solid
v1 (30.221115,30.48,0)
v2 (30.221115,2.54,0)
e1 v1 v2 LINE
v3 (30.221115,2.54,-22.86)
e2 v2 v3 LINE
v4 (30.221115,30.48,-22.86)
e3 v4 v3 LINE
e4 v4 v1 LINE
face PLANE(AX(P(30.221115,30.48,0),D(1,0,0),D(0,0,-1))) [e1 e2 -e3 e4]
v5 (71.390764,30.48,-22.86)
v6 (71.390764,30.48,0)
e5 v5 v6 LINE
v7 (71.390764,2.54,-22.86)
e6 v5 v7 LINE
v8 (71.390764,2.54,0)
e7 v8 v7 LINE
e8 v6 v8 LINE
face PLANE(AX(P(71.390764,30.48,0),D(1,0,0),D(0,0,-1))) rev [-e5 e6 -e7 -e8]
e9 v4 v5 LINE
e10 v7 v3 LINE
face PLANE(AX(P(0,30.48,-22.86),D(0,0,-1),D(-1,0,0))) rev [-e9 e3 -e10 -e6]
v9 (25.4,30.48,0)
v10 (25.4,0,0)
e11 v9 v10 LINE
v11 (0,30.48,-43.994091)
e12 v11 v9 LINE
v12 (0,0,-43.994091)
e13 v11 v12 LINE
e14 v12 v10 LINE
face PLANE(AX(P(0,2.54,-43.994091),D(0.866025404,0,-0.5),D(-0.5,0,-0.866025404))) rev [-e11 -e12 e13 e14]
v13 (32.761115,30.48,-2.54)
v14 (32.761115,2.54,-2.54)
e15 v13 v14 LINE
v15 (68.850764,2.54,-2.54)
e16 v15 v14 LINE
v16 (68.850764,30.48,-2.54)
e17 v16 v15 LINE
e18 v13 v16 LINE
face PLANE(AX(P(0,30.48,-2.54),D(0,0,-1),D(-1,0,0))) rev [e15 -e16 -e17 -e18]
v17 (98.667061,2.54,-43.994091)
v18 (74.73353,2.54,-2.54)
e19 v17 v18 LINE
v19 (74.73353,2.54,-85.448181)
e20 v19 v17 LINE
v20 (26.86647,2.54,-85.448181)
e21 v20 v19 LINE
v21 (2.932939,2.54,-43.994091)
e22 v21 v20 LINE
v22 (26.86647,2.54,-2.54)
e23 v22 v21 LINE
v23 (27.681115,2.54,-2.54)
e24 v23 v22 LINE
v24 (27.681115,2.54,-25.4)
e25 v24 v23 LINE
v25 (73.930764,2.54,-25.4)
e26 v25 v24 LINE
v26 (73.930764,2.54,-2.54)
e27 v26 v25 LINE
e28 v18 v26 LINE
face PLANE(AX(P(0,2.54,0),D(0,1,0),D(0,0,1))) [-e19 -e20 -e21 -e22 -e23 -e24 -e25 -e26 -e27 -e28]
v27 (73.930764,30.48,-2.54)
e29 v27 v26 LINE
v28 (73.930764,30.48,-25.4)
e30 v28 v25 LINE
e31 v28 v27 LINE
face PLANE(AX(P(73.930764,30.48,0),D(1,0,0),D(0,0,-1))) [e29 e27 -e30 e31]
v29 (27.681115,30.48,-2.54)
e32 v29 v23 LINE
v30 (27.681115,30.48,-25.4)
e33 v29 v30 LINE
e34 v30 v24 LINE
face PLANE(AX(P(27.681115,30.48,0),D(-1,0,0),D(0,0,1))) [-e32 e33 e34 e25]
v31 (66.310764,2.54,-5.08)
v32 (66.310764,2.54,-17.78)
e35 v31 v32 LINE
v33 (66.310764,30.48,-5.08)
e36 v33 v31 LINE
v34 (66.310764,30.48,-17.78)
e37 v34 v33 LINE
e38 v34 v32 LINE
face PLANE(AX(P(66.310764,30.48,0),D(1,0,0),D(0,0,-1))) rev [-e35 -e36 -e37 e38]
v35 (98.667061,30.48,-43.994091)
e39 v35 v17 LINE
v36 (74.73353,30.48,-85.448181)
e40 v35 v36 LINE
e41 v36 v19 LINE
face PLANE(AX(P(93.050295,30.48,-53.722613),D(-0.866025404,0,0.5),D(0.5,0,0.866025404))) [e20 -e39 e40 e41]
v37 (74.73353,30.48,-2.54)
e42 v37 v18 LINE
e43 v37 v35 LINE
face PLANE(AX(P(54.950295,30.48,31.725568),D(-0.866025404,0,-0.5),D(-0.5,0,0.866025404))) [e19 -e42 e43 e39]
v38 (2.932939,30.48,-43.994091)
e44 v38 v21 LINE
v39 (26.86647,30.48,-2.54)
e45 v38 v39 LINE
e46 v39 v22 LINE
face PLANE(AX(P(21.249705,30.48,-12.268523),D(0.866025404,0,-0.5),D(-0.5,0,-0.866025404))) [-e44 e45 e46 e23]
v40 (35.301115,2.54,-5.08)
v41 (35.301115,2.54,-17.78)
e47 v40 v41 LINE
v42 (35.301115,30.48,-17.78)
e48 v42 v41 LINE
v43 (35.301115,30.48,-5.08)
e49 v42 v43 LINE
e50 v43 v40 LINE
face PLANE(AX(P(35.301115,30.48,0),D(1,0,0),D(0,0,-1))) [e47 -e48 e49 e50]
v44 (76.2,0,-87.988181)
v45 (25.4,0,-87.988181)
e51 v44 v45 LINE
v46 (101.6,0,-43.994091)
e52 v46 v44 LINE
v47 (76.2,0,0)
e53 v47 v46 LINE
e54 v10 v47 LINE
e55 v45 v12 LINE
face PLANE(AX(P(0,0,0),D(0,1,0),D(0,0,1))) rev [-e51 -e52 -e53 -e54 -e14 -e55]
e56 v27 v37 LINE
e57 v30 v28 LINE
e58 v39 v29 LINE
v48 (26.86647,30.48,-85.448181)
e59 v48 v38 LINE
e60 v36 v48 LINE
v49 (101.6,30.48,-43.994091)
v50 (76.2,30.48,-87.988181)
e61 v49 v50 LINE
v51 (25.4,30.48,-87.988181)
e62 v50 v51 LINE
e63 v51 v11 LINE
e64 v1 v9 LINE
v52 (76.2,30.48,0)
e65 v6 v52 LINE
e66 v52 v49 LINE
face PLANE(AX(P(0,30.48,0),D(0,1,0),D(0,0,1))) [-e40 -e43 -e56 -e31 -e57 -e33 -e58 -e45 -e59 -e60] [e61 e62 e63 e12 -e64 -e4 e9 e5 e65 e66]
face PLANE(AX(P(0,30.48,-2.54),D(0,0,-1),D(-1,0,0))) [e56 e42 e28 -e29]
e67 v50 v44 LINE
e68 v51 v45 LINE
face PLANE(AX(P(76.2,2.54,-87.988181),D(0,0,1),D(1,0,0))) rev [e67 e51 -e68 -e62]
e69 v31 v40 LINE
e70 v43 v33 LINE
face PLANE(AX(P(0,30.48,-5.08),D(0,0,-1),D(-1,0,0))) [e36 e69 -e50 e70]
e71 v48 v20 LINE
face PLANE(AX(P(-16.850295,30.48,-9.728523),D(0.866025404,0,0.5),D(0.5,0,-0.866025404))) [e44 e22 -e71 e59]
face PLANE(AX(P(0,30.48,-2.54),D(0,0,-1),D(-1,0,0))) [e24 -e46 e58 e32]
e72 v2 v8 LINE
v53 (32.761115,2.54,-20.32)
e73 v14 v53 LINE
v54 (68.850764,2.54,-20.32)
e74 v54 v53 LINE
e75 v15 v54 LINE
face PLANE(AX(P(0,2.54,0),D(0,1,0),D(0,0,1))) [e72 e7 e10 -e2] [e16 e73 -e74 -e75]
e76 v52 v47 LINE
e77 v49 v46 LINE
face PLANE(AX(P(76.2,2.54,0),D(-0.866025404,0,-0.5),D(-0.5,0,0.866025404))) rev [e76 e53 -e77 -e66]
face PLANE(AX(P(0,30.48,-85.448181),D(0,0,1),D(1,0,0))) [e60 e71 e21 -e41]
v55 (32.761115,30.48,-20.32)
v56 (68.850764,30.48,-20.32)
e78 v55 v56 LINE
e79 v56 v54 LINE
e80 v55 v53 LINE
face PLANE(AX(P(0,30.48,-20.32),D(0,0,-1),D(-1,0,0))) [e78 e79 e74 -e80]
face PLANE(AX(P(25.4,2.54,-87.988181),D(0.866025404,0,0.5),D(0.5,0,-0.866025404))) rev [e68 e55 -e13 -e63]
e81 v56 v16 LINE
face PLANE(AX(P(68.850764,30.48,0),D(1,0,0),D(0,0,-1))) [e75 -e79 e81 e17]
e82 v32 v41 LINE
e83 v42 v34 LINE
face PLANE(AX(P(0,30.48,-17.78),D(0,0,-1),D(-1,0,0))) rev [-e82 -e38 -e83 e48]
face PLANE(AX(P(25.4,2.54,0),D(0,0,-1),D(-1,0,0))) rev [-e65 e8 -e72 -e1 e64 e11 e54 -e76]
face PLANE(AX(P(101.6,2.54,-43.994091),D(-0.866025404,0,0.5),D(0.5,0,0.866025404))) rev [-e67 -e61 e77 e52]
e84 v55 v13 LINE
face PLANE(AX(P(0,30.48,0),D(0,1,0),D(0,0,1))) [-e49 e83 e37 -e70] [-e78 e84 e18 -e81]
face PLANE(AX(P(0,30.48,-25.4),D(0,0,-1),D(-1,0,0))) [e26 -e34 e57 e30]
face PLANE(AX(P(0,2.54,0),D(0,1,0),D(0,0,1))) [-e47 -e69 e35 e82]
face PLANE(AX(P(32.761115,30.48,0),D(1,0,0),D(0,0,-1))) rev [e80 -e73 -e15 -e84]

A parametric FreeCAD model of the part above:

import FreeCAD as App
import Part
import Sketcher
Q = App.Units.Quantity

doc = App.newDocument("Part")
body = doc.addObject("PartDesign::Body", "Body")

# Sketch on XZ plane
sketch1 = doc.addObject("Sketcher::SketchObject", "Sketch")
body.addObject(sketch1)
sketch1.AttachmentSupport = (doc.XZ_Plane, [""])
sketch1.MapMode = "FlatFace"
sketch1.addGeometry([
    Part.LineSegment(App.Vector(76.2, 0, 0), App.Vector(101.6, -43.994091, 0)),  # 0
    Part.LineSegment(App.Vector(101.6, -43.994091, 0), App.Vector(76.2, -87.988181, 0)),  # 1
    Part.LineSegment(App.Vector(76.2, -87.988181, 0), App.Vector(25.4, -87.988181, 0)),  # 2
    Part.LineSegment(App.Vector(25.4, -87.988181, 0), App.Vector(0, -43.994091, 0)),  # 3
    Part.LineSegment(App.Vector(0, -43.994091, 0), App.Vector(25.4, 0, 0)),  # 4
    Part.LineSegment(App.Vector(25.4, 0, 0), App.Vector(76.2, 0, 0)),  # 5
], False)
sketch1.addConstraint([
    Sketcher.Constraint("Coincident", 0, 2, 1, 1),
    Sketcher.Constraint("Coincident", 1, 2, 2, 1),
    Sketcher.Constraint("Coincident", 2, 2, 3, 1),
    Sketcher.Constraint("Coincident", 3, 2, 4, 1),
    Sketcher.Constraint("Coincident", 4, 2, 5, 1),
    Sketcher.Constraint("Coincident", 5, 2, 0, 1),
    Sketcher.Constraint("Horizontal", 2),
    Sketcher.Constraint("Horizontal", 5),
    Sketcher.Constraint("PointOnObject", 3, 2, -2),
    Sketcher.Constraint("PointOnObject", 4, 2, -1),
    Sketcher.Constraint("Parallel", 0, 3),
    Sketcher.Constraint("Parallel", 1, 4),
    Sketcher.Constraint("Horizontal", 0, 2, 3, 2),
    Sketcher.Constraint("Vertical", 2, 2, 4, 2),
    Sketcher.Constraint("Vertical", 1, 2, 5, 2),
    Sketcher.Constraint("DistanceX", 2, 2, 2, 1, Q("2 in")),
    Sketcher.Constraint("Distance", 0, Q("2 in")),
    Sketcher.Constraint("DistanceX", -1, 1, 0, 2, Q("4 in")),
])
pad1 = doc.addObject("PartDesign::Pad", "Pad")
body.addObject(pad1)
pad1.Profile = sketch1
pad1.Length = Q("0.1 in")
pad1.Reversed = True

# Sketch on XZ plane
sketch2 = doc.addObject("Sketcher::SketchObject", "Sketch001")
body.addObject(sketch2)
sketch2.AttachmentSupport = (doc.XZ_Plane, [""])
sketch2.MapMode = "FlatFace"
sketch2.addGeometry([
    Part.LineSegment(App.Vector(32.761115, -20.32, 0), App.Vector(32.761115, -2.54, 0)),  # 0
    Part.LineSegment(App.Vector(32.761115, -2.54, 0), App.Vector(68.850764, -2.54, 0)),  # 1
    Part.LineSegment(App.Vector(68.850764, -2.54, 0), App.Vector(68.850764, -20.32, 0)),  # 2
    Part.LineSegment(App.Vector(68.850764, -20.32, 0), App.Vector(32.761115, -20.32, 0)),  # 3
    Part.LineSegment(App.Vector(66.310764, -5.08, 0), App.Vector(35.301115, -5.08, 0)),  # 4
    Part.LineSegment(App.Vector(35.301115, -5.08, 0), App.Vector(35.301115, -17.78, 0)),  # 5
    Part.LineSegment(App.Vector(35.301115, -17.78, 0), App.Vector(66.310764, -17.78, 0)),  # 6
    Part.LineSegment(App.Vector(66.310764, -17.78, 0), App.Vector(66.310764, -5.08, 0)),  # 7
    Part.LineSegment(App.Vector(30.221115, 0, 0), App.Vector(30.221115, -22.86, 0)),  # 8
    Part.LineSegment(App.Vector(30.221115, -22.86, 0), App.Vector(71.390764, -22.86, 0)),  # 9
    Part.LineSegment(App.Vector(71.390764, -22.86, 0), App.Vector(71.390764, 0, 0)),  # 10
    Part.LineSegment(App.Vector(71.390764, 0, 0), App.Vector(76.2, 0, 0)),  # 11
    Part.LineSegment(App.Vector(76.2, 0, 0), App.Vector(101.6, -43.994091, 0)),  # 12
    Part.LineSegment(App.Vector(101.6, -43.994091, 0), App.Vector(76.2, -87.988181, 0)),  # 13
    Part.LineSegment(App.Vector(76.2, -87.988181, 0), App.Vector(25.4, -87.988181, 0)),  # 14
    Part.LineSegment(App.Vector(25.4, -87.988181, 0), App.Vector(0, -43.994091, 0)),  # 15
    Part.LineSegment(App.Vector(0, -43.994091, 0), App.Vector(25.4, 0, 0)),  # 16
    Part.LineSegment(App.Vector(25.4, 0, 0), App.Vector(30.221115, 0, 0)),  # 17
    Part.LineSegment(App.Vector(73.930764, -2.54, 0), App.Vector(73.930764, -25.4, 0)),  # 18
    Part.LineSegment(App.Vector(73.930764, -25.4, 0), App.Vector(27.681115, -25.4, 0)),  # 19
    Part.LineSegment(App.Vector(27.681115, -25.4, 0), App.Vector(27.681115, -2.54, 0)),  # 20
    Part.LineSegment(App.Vector(27.681115, -2.54, 0), App.Vector(26.86647, -2.54, 0)),  # 21
    Part.LineSegment(App.Vector(26.86647, -2.54, 0), App.Vector(2.932939, -43.994091, 0)),  # 22
    Part.LineSegment(App.Vector(2.932939, -43.994091, 0), App.Vector(26.86647, -85.448181, 0)),  # 23
    Part.LineSegment(App.Vector(26.86647, -85.448181, 0), App.Vector(74.73353, -85.448181, 0)),  # 24
    Part.LineSegment(App.Vector(74.73353, -85.448181, 0), App.Vector(98.667061, -43.994091, 0)),  # 25
    Part.LineSegment(App.Vector(98.667061, -43.994091, 0), App.Vector(74.73353, -2.54, 0)),  # 26
    Part.LineSegment(App.Vector(74.73353, -2.54, 0), App.Vector(73.930764, -2.54, 0)),  # 27
], False)
sketch2.addConstraint([
    Sketcher.Constraint("Coincident", 0, 2, 1, 1),
    Sketcher.Constraint("Coincident", 1, 2, 2, 1),
    Sketcher.Constraint("Coincident", 2, 2, 3, 1),
    Sketcher.Constraint("Coincident", 3, 2, 0, 1),
    Sketcher.Constraint("Coincident", 4, 2, 5, 1),
    Sketcher.Constraint("Coincident", 5, 2, 6, 1),
    Sketcher.Constraint("Coincident", 6, 2, 7, 1),
    Sketcher.Constraint("Coincident", 7, 2, 4, 1),
    Sketcher.Constraint("Coincident", 8, 2, 9, 1),
    Sketcher.Constraint("Coincident", 9, 2, 10, 1),
    Sketcher.Constraint("Coincident", 10, 2, 11, 1),
    Sketcher.Constraint("Coincident", 11, 2, 12, 1),
    Sketcher.Constraint("Coincident", 12, 2, 13, 1),
    Sketcher.Constraint("Coincident", 13, 2, 14, 1),
    Sketcher.Constraint("Coincident", 14, 2, 15, 1),
    Sketcher.Constraint("Coincident", 15, 2, 16, 1),
    Sketcher.Constraint("Coincident", 16, 2, 17, 1),
    Sketcher.Constraint("Coincident", 17, 2, 8, 1),
    Sketcher.Constraint("Coincident", 18, 2, 19, 1),
    Sketcher.Constraint("Coincident", 19, 2, 20, 1),
    Sketcher.Constraint("Coincident", 20, 2, 21, 1),
    Sketcher.Constraint("Coincident", 21, 2, 22, 1),
    Sketcher.Constraint("Coincident", 22, 2, 23, 1),
    Sketcher.Constraint("Coincident", 23, 2, 24, 1),
    Sketcher.Constraint("Coincident", 24, 2, 25, 1),
    Sketcher.Constraint("Coincident", 25, 2, 26, 1),
    Sketcher.Constraint("Coincident", 26, 2, 27, 1),
    Sketcher.Constraint("Coincident", 27, 2, 18, 1),
    Sketcher.Constraint("Vertical", 0),
    Sketcher.Constraint("Horizontal", 1),
    Sketcher.Constraint("Vertical", 2),
    Sketcher.Constraint("Horizontal", 3),
    Sketcher.Constraint("Horizontal", 4),
    Sketcher.Constraint("Vertical", 5),
    Sketcher.Constraint("Horizontal", 6),
    Sketcher.Constraint("Vertical", 7),
    Sketcher.Constraint("Vertical", 8),
    Sketcher.Constraint("Horizontal", 9),
    Sketcher.Constraint("Vertical", 10),
    Sketcher.Constraint("Horizontal", 11),
    Sketcher.Constraint("Horizontal", 14),
    Sketcher.Constraint("Horizontal", 17),
    Sketcher.Constraint("Vertical", 18),
    Sketcher.Constraint("Horizontal", 19),
    Sketcher.Constraint("Vertical", 20),
    Sketcher.Constraint("Horizontal", 21),
    Sketcher.Constraint("Horizontal", 24),
    Sketcher.Constraint("Horizontal", 27),
    Sketcher.Constraint("PointOnObject", 10, 2, -1),
    Sketcher.Constraint("PointOnObject", 15, 2, -2),
    Sketcher.Constraint("PointOnObject", 16, 2, -1),
    Sketcher.Constraint("Parallel", 12, 15),
    Sketcher.Constraint("Parallel", 13, 16),
    Sketcher.Constraint("Parallel", 16, 22),
    Sketcher.Constraint("Parallel", 15, 23),
    Sketcher.Constraint("Parallel", 22, 25),
    Sketcher.Constraint("Parallel", 23, 26),
    Sketcher.Constraint("Horizontal", 12, 2, 15, 2),
    Sketcher.Constraint("Horizontal", 1, 2, 20, 2),
    Sketcher.Constraint("Horizontal", 15, 2, 22, 2),
    Sketcher.Constraint("Horizontal", 22, 2, 25, 2),
    Sketcher.Constraint("Horizontal", 21, 2, 26, 2),
    Sketcher.Constraint("Vertical", 11, 2, 13, 2),
    Sketcher.Constraint("Vertical", 14, 2, 16, 2),
    Sketcher.Constraint("Vertical", 21, 2, 23, 2),
    Sketcher.Constraint("Equal", 10, 18),
    Sketcher.Constraint("DistanceX", 14, 2, 14, 1, Q("2 in")),
    Sketcher.Constraint("Distance", 12, Q("2 in")),
    Sketcher.Constraint("DistanceY", 0, 1, 0, 2, Q("0.7 in")),
    Sketcher.Constraint("DistanceY", 5, 2, 5, 1, Q("0.5 in")),
    Sketcher.Constraint("DistanceY", 8, 2, 8, 1, Q("0.9 in")),
    Sketcher.Constraint("DistanceX", -1, 1, 11, 2, Q("3 in")),
    Sketcher.Constraint("DistanceY", 18, 2, -1, 1, Q("1 in")),
    Sketcher.Constraint("DistanceY", 4, 2, -1, 1, Q("0.2 in")),
    Sketcher.Constraint("DistanceX", 0, 2, 4, 2, Q("0.1 in")),
    Sketcher.Constraint("DistanceX", 6, 2, 2, 2, Q("0.1 in")),
    Sketcher.Constraint("DistanceX", 8, 2, 3, 2, Q("0.1 in")),
    Sketcher.Constraint("DistanceX", 2, 2, 9, 2, Q("0.1 in")),
    Sketcher.Constraint("DistanceX", 9, 2, 18, 2, Q("0.1 in")),
    Sketcher.Constraint("DistanceX", 19, 2, 8, 2, Q("0.1 in")),
    Sketcher.Constraint("DistanceX", 1, 1, 1, 2, Q("36.089649 mm")),
    Sketcher.Constraint("DistanceX", 24, 1, 24, 2, Q("47.867061 mm")),
    Sketcher.Constraint("DistanceX", 11, 1, 11, 2, Q("4.809236 mm")),
    Sketcher.Constraint("DistanceX", 21, 2, 21, 1, Q("0.814645 mm")),
])
pad2 = doc.addObject("PartDesign::Pad", "Pad001")
body.addObject(pad2)
pad2.Profile = sketch2
pad2.Length = Q("1.2 in")
pad2.Reversed = True

doc.recompute()
